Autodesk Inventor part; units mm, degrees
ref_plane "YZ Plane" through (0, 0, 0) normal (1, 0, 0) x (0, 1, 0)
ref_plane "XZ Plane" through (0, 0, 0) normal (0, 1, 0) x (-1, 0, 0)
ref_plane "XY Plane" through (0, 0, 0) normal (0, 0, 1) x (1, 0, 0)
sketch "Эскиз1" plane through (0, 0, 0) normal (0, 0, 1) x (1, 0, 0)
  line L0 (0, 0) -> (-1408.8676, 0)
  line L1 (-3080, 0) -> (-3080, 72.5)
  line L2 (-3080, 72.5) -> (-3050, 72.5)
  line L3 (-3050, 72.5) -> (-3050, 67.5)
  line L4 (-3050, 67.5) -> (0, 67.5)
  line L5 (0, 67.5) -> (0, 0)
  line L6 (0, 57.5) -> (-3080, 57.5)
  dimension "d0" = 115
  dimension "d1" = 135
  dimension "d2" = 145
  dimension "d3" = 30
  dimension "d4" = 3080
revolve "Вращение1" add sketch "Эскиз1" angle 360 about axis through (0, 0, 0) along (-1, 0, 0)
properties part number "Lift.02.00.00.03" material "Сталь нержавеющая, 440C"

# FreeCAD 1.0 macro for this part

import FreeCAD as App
import Part
import Sketcher

V = App.Vector
Q = App.Units.Quantity

doc = App.newDocument("Part")
params = doc.addObject("Spreadsheet::Sheet", "Params")
for row, (alias, value) in enumerate([
    ("sketch1_width", "3080 mm"),
    ("sketch1_width2", "30 mm"),
    ("sketch1_height", "15 mm"),
    ("sketch1_height2", "10 mm"),
    ("revolution_angle", "360 deg"),
], start=1):
    params.set(f"A{row}", alias)
    params.set(f"B{row}", "=" + value)
    params.setAlias(f"B{row}", alias)

body = doc.addObject("PartDesign::Body", "Body")

sketch1 = body.newObject("Sketcher::SketchObject", "Sketch")
sketch1.AttachmentSupport = (doc.getObject("XY_Plane"), [""])
sketch1.MapMode = "FlatFace"
sketch1.addGeometry([
    Part.LineSegment(V(-3080, 72, 0), V(-3080, 58, 0)),
    Part.LineSegment(V(-3080, 58, 0), V(0, 58, 0)),
    Part.LineSegment(V(0, 58, 0), V(0, 68, 0)),
    Part.LineSegment(V(0, 68, 0), V(-3050, 68, 0)),
    Part.LineSegment(V(-3050, 68, 0), V(-3050, 72, 0)),
    Part.LineSegment(V(-3050, 72, 0), V(-3080, 72, 0)),
], False)
sketch1.addConstraint([
    Sketcher.Constraint("Coincident", 0, 2, 1, 1),
    Sketcher.Constraint("Coincident", 1, 2, 2, 1),
    Sketcher.Constraint("Coincident", 2, 2, 3, 1),
    Sketcher.Constraint("Coincident", 3, 2, 4, 1),
    Sketcher.Constraint("Coincident", 4, 2, 5, 1),
    Sketcher.Constraint("Coincident", 5, 2, 0, 1),
    Sketcher.Constraint("Vertical", 0),
    Sketcher.Constraint("Horizontal", 1),
    Sketcher.Constraint("Vertical", 2),
    Sketcher.Constraint("Horizontal", 3),
    Sketcher.Constraint("Vertical", 4),
    Sketcher.Constraint("Horizontal", 5),
    Sketcher.Constraint("PointOnObject", 1, 2, -2),
    Sketcher.Constraint("DistanceX", 1, 1, 1, 2, Q("3080 mm")),
    Sketcher.Constraint("DistanceX", 5, 2, 5, 1, Q("30 mm")),
    Sketcher.Constraint("DistanceY", 0, 2, 0, 1, Q("15 mm")),
    Sketcher.Constraint("DistanceY", 2, 1, 2, 2, Q("10 mm")),
    Sketcher.Constraint("DistanceY", -1, 1, 0, 2, Q("57.5 mm")),
])
sketch1.setExpression("Constraints[13]", "Params.sketch1_width")
sketch1.setExpression("Constraints[14]", "Params.sketch1_width2")
sketch1.setExpression("Constraints[15]", "Params.sketch1_height")
sketch1.setExpression("Constraints[16]", "Params.sketch1_height2")
revolution = body.newObject("PartDesign::Revolution", "Revolution")
revolution.Profile = sketch1
revolution.ReferenceAxis = (sketch1, ["H_Axis"])
revolution.setExpression("Angle", "Params.revolution_angle")

doc.recompute()
